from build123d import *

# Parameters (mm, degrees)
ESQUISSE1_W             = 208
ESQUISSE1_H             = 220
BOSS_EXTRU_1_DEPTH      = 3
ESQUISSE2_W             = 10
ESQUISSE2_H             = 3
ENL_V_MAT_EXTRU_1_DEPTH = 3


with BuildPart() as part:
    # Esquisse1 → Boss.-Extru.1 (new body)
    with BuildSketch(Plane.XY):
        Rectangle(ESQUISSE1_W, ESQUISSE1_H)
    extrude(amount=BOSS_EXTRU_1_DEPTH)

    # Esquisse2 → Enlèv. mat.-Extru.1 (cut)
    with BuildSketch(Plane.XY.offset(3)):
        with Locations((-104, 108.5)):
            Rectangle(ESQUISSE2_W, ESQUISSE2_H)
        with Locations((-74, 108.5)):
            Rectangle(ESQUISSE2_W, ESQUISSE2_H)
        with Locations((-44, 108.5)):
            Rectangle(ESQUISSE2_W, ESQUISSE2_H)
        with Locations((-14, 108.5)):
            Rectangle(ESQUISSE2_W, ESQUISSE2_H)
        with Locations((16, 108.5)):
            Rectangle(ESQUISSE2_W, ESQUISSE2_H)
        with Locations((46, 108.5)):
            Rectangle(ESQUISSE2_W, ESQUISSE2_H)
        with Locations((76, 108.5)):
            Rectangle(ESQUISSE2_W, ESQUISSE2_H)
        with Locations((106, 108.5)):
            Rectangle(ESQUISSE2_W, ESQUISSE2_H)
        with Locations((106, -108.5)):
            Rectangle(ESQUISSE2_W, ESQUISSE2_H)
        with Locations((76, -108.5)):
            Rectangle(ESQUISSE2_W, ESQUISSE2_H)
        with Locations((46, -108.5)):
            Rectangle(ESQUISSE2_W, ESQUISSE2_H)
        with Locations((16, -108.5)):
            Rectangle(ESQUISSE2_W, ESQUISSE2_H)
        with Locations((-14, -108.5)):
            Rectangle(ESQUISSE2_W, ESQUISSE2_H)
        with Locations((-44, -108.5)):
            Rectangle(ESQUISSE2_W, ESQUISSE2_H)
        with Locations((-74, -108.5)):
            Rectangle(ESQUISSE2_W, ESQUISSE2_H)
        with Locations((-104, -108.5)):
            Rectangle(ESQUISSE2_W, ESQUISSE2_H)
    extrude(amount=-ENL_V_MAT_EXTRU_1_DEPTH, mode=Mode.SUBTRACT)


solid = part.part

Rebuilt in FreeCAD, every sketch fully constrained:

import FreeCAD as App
import Part
import Sketcher
from FreeCAD import Vector
Q = App.Units.Quantity

doc = App.newDocument("Part")
body = doc.addObject("PartDesign::Body", "Body")

sketch1 = body.newObject("Sketcher::SketchObject", "Sketch")
sketch1.AttachmentSupport = (doc.getObject("XY_Plane"), [""])
sketch1.MapMode = "FlatFace"
sketch1.addGeometry(Part.LineSegment(Vector(-104, 110, 0), Vector(-104, -110, 0)), False)
sketch1.addGeometry(Part.LineSegment(Vector(-104, -110, 0), Vector(104, -110, 0)), False)
sketch1.addGeometry(Part.LineSegment(Vector(104, -110, 0), Vector(104, 110, 0)), False)
sketch1.addGeometry(Part.LineSegment(Vector(104, 110, 0), Vector(-104, 110, 0)), False)
sketch1.addConstraint(Sketcher.Constraint("Coincident", 0, 2, 1, 1))
sketch1.addConstraint(Sketcher.Constraint("Coincident", 1, 2, 2, 1))
sketch1.addConstraint(Sketcher.Constraint("Coincident", 2, 2, 3, 1))
sketch1.addConstraint(Sketcher.Constraint("Coincident", 3, 2, 0, 1))
sketch1.addConstraint(Sketcher.Constraint("Vertical", 0))
sketch1.addConstraint(Sketcher.Constraint("Horizontal", 1))
sketch1.addConstraint(Sketcher.Constraint("Vertical", 2))
sketch1.addConstraint(Sketcher.Constraint("Horizontal", 3))
sketch1.addConstraint(Sketcher.Constraint("Symmetric", 0, 2, 2, 2, -1, 1))
sketch1.addConstraint(Sketcher.Constraint("DistanceX", 1, 1, 1, 2, Q("208 mm")))
sketch1.addConstraint(Sketcher.Constraint("DistanceY", 0, 2, 0, 1, Q("220 mm")))
pad1 = body.newObject("PartDesign::Pad", "Pad")
pad1.Profile = sketch1
pad1.Length = 3

sketch2 = body.newObject("Sketcher::SketchObject", "Sketch001")
sketch2.AttachmentSupport = (doc.getObject("XY_Plane"), [""])
sketch2.MapMode = "FlatFace"
sketch2.AttachmentOffset = App.Placement(Vector(0, 0, 3), App.Rotation())
sketch2.addGeometry(Part.LineSegment(Vector(-109, 110, 0), Vector(-109, 107, 0)), False)
sketch2.addGeometry(Part.LineSegment(Vector(-109, 107, 0), Vector(-99, 107, 0)), False)
sketch2.addGeometry(Part.LineSegment(Vector(-99, 107, 0), Vector(-99, 110, 0)), False)
sketch2.addGeometry(Part.LineSegment(Vector(-99, 110, 0), Vector(-109, 110, 0)), False)
sketch2.addGeometry(Part.LineSegment(Vector(-79, 110, 0), Vector(-79, 107, 0)), False)
sketch2.addGeometry(Part.LineSegment(Vector(-79, 107, 0), Vector(-69, 107, 0)), False)
sketch2.addGeometry(Part.LineSegment(Vector(-69, 107, 0), Vector(-69, 110, 0)), False)
sketch2.addGeometry(Part.LineSegment(Vector(-69, 110, 0), Vector(-79, 110, 0)), False)
sketch2.addGeometry(Part.LineSegment(Vector(-49, 110, 0), Vector(-49, 107, 0)), False)
sketch2.addGeometry(Part.LineSegment(Vector(-49, 107, 0), Vector(-39, 107, 0)), False)
sketch2.addGeometry(Part.LineSegment(Vector(-39, 107, 0), Vector(-39, 110, 0)), False)
sketch2.addGeometry(Part.LineSegment(Vector(-39, 110, 0), Vector(-49, 110, 0)), False)
sketch2.addGeometry(Part.LineSegment(Vector(-19, 110, 0), Vector(-19, 107, 0)), False)
sketch2.addGeometry(Part.LineSegment(Vector(-19, 107, 0), Vector(-9, 107, 0)), False)
sketch2.addGeometry(Part.LineSegment(Vector(-9, 107, 0), Vector(-9, 110, 0)), False)
sketch2.addGeometry(Part.LineSegment(Vector(-9, 110, 0), Vector(-19, 110, 0)), False)
sketch2.addGeometry(Part.LineSegment(Vector(11, 110, 0), Vector(11, 107, 0)), False)
sketch2.addGeometry(Part.LineSegment(Vector(11, 107, 0), Vector(21, 107, 0)), False)
sketch2.addGeometry(Part.LineSegment(Vector(21, 107, 0), Vector(21, 110, 0)), False)
sketch2.addGeometry(Part.LineSegment(Vector(21, 110, 0), Vector(11, 110, 0)), False)
sketch2.addGeometry(Part.LineSegment(Vector(41, 110, 0), Vector(41, 107, 0)), False)
sketch2.addGeometry(Part.LineSegment(Vector(41, 107, 0), Vector(51, 107, 0)), False)
sketch2.addGeometry(Part.LineSegment(Vector(51, 107, 0), Vector(51, 110, 0)), False)
sketch2.addGeometry(Part.LineSegment(Vector(51, 110, 0), Vector(41, 110, 0)), False)
sketch2.addGeometry(Part.LineSegment(Vector(71, 110, 0), Vector(71, 107, 0)), False)
sketch2.addGeometry(Part.LineSegment(Vector(71, 107, 0), Vector(81, 107, 0)), False)
sketch2.addGeometry(Part.LineSegment(Vector(81, 107, 0), Vector(81, 110, 0)), False)
sketch2.addGeometry(Part.LineSegment(Vector(81, 110, 0), Vector(71, 110, 0)), False)
sketch2.addGeometry(Part.LineSegment(Vector(101, 110, 0), Vector(101, 107, 0)), False)
sketch2.addGeometry(Part.LineSegment(Vector(101, 107, 0), Vector(111, 107, 0)), False)
sketch2.addGeometry(Part.LineSegment(Vector(111, 107, 0), Vector(111, 110, 0)), False)
sketch2.addGeometry(Part.LineSegment(Vector(111, 110, 0), Vector(101, 110, 0)), False)
sketch2.addGeometry(Part.LineSegment(Vector(101, -107, 0), Vector(101, -110, 0)), False)
sketch2.addGeometry(Part.LineSegment(Vector(101, -110, 0), Vector(111, -110, 0)), False)
sketch2.addGeometry(Part.LineSegment(Vector(111, -110, 0), Vector(111, -107, 0)), False)
sketch2.addGeometry(Part.LineSegment(Vector(111, -107, 0), Vector(101, -107, 0)), False)
sketch2.addGeometry(Part.LineSegment(Vector(71, -107, 0), Vector(71, -110, 0)), False)
sketch2.addGeometry(Part.LineSegment(Vector(71, -110, 0), Vector(81, -110, 0)), False)
sketch2.addGeometry(Part.LineSegment(Vector(81, -110, 0), Vector(81, -107, 0)), False)
sketch2.addGeometry(Part.LineSegment(Vector(81, -107, 0), Vector(71, -107, 0)), False)
sketch2.addGeometry(Part.LineSegment(Vector(41, -107, 0), Vector(41, -110, 0)), False)
sketch2.addGeometry(Part.LineSegment(Vector(41, -110, 0), Vector(51, -110, 0)), False)
sketch2.addGeometry(Part.LineSegment(Vector(51, -110, 0), Vector(51, -107, 0)), False)
sketch2.addGeometry(Part.LineSegment(Vector(51, -107, 0), Vector(41, -107, 0)), False)
sketch2.addGeometry(Part.LineSegment(Vector(11, -107, 0), Vector(11, -110, 0)), False)
sketch2.addGeometry(Part.LineSegment(Vector(11, -110, 0), Vector(21, -110, 0)), False)
sketch2.addGeometry(Part.LineSegment(Vector(21, -110, 0), Vector(21, -107, 0)), False)
sketch2.addGeometry(Part.LineSegment(Vector(21, -107, 0), Vector(11, -107, 0)), False)
sketch2.addGeometry(Part.LineSegment(Vector(-19, -107, 0), Vector(-19, -110, 0)), False)
sketch2.addGeometry(Part.LineSegment(Vector(-19, -110, 0), Vector(-9, -110, 0)), False)
sketch2.addGeometry(Part.LineSegment(Vector(-9, -110, 0), Vector(-9, -107, 0)), False)
sketch2.addGeometry(Part.LineSegment(Vector(-9, -107, 0), Vector(-19, -107, 0)), False)
sketch2.addGeometry(Part.LineSegment(Vector(-49, -107, 0), Vector(-49, -110, 0)), False)
sketch2.addGeometry(Part.LineSegment(Vector(-49, -110, 0), Vector(-39, -110, 0)), False)
sketch2.addGeometry(Part.LineSegment(Vector(-39, -110, 0), Vector(-39, -107, 0)), False)
sketch2.addGeometry(Part.LineSegment(Vector(-39, -107, 0), Vector(-49, -107, 0)), False)
sketch2.addGeometry(Part.LineSegment(Vector(-79, -107, 0), Vector(-79, -110, 0)), False)
sketch2.addGeometry(Part.LineSegment(Vector(-79, -110, 0), Vector(-69, -110, 0)), False)
sketch2.addGeometry(Part.LineSegment(Vector(-69, -110, 0), Vector(-69, -107, 0)), False)
sketch2.addGeometry(Part.LineSegment(Vector(-69, -107, 0), Vector(-79, -107, 0)), False)
sketch2.addGeometry(Part.LineSegment(Vector(-109, -107, 0), Vector(-109, -110, 0)), False)
sketch2.addGeometry(Part.LineSegment(Vector(-109, -110, 0), Vector(-99, -110, 0)), False)
sketch2.addGeometry(Part.LineSegment(Vector(-99, -110, 0), Vector(-99, -107, 0)), False)
sketch2.addGeometry(Part.LineSegment(Vector(-99, -107, 0), Vector(-109, -107, 0)), False)
sketch2.addConstraint(Sketcher.Constraint("Coincident", 0, 2, 1, 1))
sketch2.addConstraint(Sketcher.Constraint("Coincident", 1, 2, 2, 1))
sketch2.addConstraint(Sketcher.Constraint("Coincident", 2, 2, 3, 1))
sketch2.addConstraint(Sketcher.Constraint("Coincident", 3, 2, 0, 1))
sketch2.addConstraint(Sketcher.Constraint("Coincident", 4, 2, 5, 1))
sketch2.addConstraint(Sketcher.Constraint("Coincident", 5, 2, 6, 1))
sketch2.addConstraint(Sketcher.Constraint("Coincident", 6, 2, 7, 1))
sketch2.addConstraint(Sketcher.Constraint("Coincident", 7, 2, 4, 1))
sketch2.addConstraint(Sketcher.Constraint("Coincident", 8, 2, 9, 1))
sketch2.addConstraint(Sketcher.Constraint("Coincident", 9, 2, 10, 1))
sketch2.addConstraint(Sketcher.Constraint("Coincident", 10, 2, 11, 1))
sketch2.addConstraint(Sketcher.Constraint("Coincident", 11, 2, 8, 1))
sketch2.addConstraint(Sketcher.Constraint("Coincident", 12, 2, 13, 1))
sketch2.addConstraint(Sketcher.Constraint("Coincident", 13, 2, 14, 1))
sketch2.addConstraint(Sketcher.Constraint("Coincident", 14, 2, 15, 1))
sketch2.addConstraint(Sketcher.Constraint("Coincident", 15, 2, 12, 1))
sketch2.addConstraint(Sketcher.Constraint("Coincident", 16, 2, 17, 1))
sketch2.addConstraint(Sketcher.Constraint("Coincident", 17, 2, 18, 1))
sketch2.addConstraint(Sketcher.Constraint("Coincident", 18, 2, 19, 1))
sketch2.addConstraint(Sketcher.Constraint("Coincident", 19, 2, 16, 1))
sketch2.addConstraint(Sketcher.Constraint("Coincident", 20, 2, 21, 1))
sketch2.addConstraint(Sketcher.Constraint("Coincident", 21, 2, 22, 1))
sketch2.addConstraint(Sketcher.Constraint("Coincident", 22, 2, 23, 1))
sketch2.addConstraint(Sketcher.Constraint("Coincident", 23, 2, 20, 1))
sketch2.addConstraint(Sketcher.Constraint("Coincident", 24, 2, 25, 1))
sketch2.addConstraint(Sketcher.Constraint("Coincident", 25, 2, 26, 1))
sketch2.addConstraint(Sketcher.Constraint("Coincident", 26, 2, 27, 1))
sketch2.addConstraint(Sketcher.Constraint("Coincident", 27, 2, 24, 1))
sketch2.addConstraint(Sketcher.Constraint("Coincident", 28, 2, 29, 1))
sketch2.addConstraint(Sketcher.Constraint("Coincident", 29, 2, 30, 1))
sketch2.addConstraint(Sketcher.Constraint("Coincident", 30, 2, 31, 1))
sketch2.addConstraint(Sketcher.Constraint("Coincident", 31, 2, 28, 1))
sketch2.addConstraint(Sketcher.Constraint("Coincident", 32, 2, 33, 1))
sketch2.addConstraint(Sketcher.Constraint("Coincident", 33, 2, 34, 1))
sketch2.addConstraint(Sketcher.Constraint("Coincident", 34, 2, 35, 1))
sketch2.addConstraint(Sketcher.Constraint("Coincident", 35, 2, 32, 1))
sketch2.addConstraint(Sketcher.Constraint("Coincident", 36, 2, 37, 1))
sketch2.addConstraint(Sketcher.Constraint("Coincident", 37, 2, 38, 1))
sketch2.addConstraint(Sketcher.Constraint("Coincident", 38, 2, 39, 1))
sketch2.addConstraint(Sketcher.Constraint("Coincident", 39, 2, 36, 1))
sketch2.addConstraint(Sketcher.Constraint("Coincident", 40, 2, 41, 1))
sketch2.addConstraint(Sketcher.Constraint("Coincident", 41, 2, 42, 1))
sketch2.addConstraint(Sketcher.Constraint("Coincident", 42, 2, 43, 1))
sketch2.addConstraint(Sketcher.Constraint("Coincident", 43, 2, 40, 1))
sketch2.addConstraint(Sketcher.Constraint("Coincident", 44, 2, 45, 1))
sketch2.addConstraint(Sketcher.Constraint("Coincident", 45, 2, 46, 1))
sketch2.addConstraint(Sketcher.Constraint("Coincident", 46, 2, 47, 1))
sketch2.addConstraint(Sketcher.Constraint("Coincident", 47, 2, 44, 1))
sketch2.addConstraint(Sketcher.Constraint("Coincident", 48, 2, 49, 1))
sketch2.addConstraint(Sketcher.Constraint("Coincident", 49, 2, 50, 1))
sketch2.addConstraint(Sketcher.Constraint("Coincident", 50, 2, 51, 1))
sketch2.addConstraint(Sketcher.Constraint("Coincident", 51, 2, 48, 1))
sketch2.addConstraint(Sketcher.Constraint("Coincident", 52, 2, 53, 1))
sketch2.addConstraint(Sketcher.Constraint("Coincident", 53, 2, 54, 1))
sketch2.addConstraint(Sketcher.Constraint("Coincident", 54, 2, 55, 1))
sketch2.addConstraint(Sketcher.Constraint("Coincident", 55, 2, 52, 1))
sketch2.addConstraint(Sketcher.Constraint("Coincident", 56, 2, 57, 1))
sketch2.addConstraint(Sketcher.Constraint("Coincident", 57, 2, 58, 1))
sketch2.addConstraint(Sketcher.Constraint("Coincident", 58, 2, 59, 1))
sketch2.addConstraint(Sketcher.Constraint("Coincident", 59, 2, 56, 1))
sketch2.addConstraint(Sketcher.Constraint("Coincident", 60, 2, 61, 1))
sketch2.addConstraint(Sketcher.Constraint("Coincident", 61, 2, 62, 1))
sketch2.addConstraint(Sketcher.Constraint("Coincident", 62, 2, 63, 1))
sketch2.addConstraint(Sketcher.Constraint("Coincident", 63, 2, 60, 1))
sketch2.addConstraint(Sketcher.Constraint("Vertical", 0))
sketch2.addConstraint(Sketcher.Constraint("Horizontal", 1))
sketch2.addConstraint(Sketcher.Constraint("Vertical", 2))
sketch2.addConstraint(Sketcher.Constraint("Horizontal", 3))
sketch2.addConstraint(Sketcher.Constraint("Vertical", 4))
sketch2.addConstraint(Sketcher.Constraint("Horizontal", 5))
sketch2.addConstraint(Sketcher.Constraint("Vertical", 6))
sketch2.addConstraint(Sketcher.Constraint("Horizontal", 7))
sketch2.addConstraint(Sketcher.Constraint("Vertical", 8))
sketch2.addConstraint(Sketcher.Constraint("Horizontal", 9))
sketch2.addConstraint(Sketcher.Constraint("Vertical", 10))
sketch2.addConstraint(Sketcher.Constraint("Horizontal", 11))
sketch2.addConstraint(Sketcher.Constraint("Vertical", 12))
sketch2.addConstraint(Sketcher.Constraint("Horizontal", 13))
sketch2.addConstraint(Sketcher.Constraint("Vertical", 14))
sketch2.addConstraint(Sketcher.Constraint("Horizontal", 15))
sketch2.addConstraint(Sketcher.Constraint("Vertical", 16))
sketch2.addConstraint(Sketcher.Constraint("Horizontal", 17))
sketch2.addConstraint(Sketcher.Constraint("Vertical", 18))
sketch2.addConstraint(Sketcher.Constraint("Horizontal", 19))
sketch2.addConstraint(Sketcher.Constraint("Vertical", 20))
sketch2.addConstraint(Sketcher.Constraint("Horizontal", 21))
sketch2.addConstraint(Sketcher.Constraint("Vertical", 22))
sketch2.addConstraint(Sketcher.Constraint("Horizontal", 23))
sketch2.addConstraint(Sketcher.Constraint("Vertical", 24))
sketch2.addConstraint(Sketcher.Constraint("Horizontal", 25))
sketch2.addConstraint(Sketcher.Constraint("Vertical", 26))
sketch2.addConstraint(Sketcher.Constraint("Horizontal", 27))
sketch2.addConstraint(Sketcher.Constraint("Vertical", 28))
sketch2.addConstraint(Sketcher.Constraint("Horizontal", 29))
sketch2.addConstraint(Sketcher.Constraint("Vertical", 30))
sketch2.addConstraint(Sketcher.Constraint("Horizontal", 31))
sketch2.addConstraint(Sketcher.Constraint("Vertical", 32))
sketch2.addConstraint(Sketcher.Constraint("Horizontal", 33))
sketch2.addConstraint(Sketcher.Constraint("Vertical", 34))
sketch2.addConstraint(Sketcher.Constraint("Horizontal", 35))
sketch2.addConstraint(Sketcher.Constraint("Vertical", 36))
sketch2.addConstraint(Sketcher.Constraint("Horizontal", 37))
sketch2.addConstraint(Sketcher.Constraint("Vertical", 38))
sketch2.addConstraint(Sketcher.Constraint("Horizontal", 39))
sketch2.addConstraint(Sketcher.Constraint("Vertical", 40))
sketch2.addConstraint(Sketcher.Constraint("Horizontal", 41))
sketch2.addConstraint(Sketcher.Constraint("Vertical", 42))
sketch2.addConstraint(Sketcher.Constraint("Horizontal", 43))
sketch2.addConstraint(Sketcher.Constraint("Vertical", 44))
sketch2.addConstraint(Sketcher.Constraint("Horizontal", 45))
sketch2.addConstraint(Sketcher.Constraint("Vertical", 46))
sketch2.addConstraint(Sketcher.Constraint("Horizontal", 47))
sketch2.addConstraint(Sketcher.Constraint("Vertical", 48))
sketch2.addConstraint(Sketcher.Constraint("Horizontal", 49))
sketch2.addConstraint(Sketcher.Constraint("Vertical", 50))
sketch2.addConstraint(Sketcher.Constraint("Horizontal", 51))
sketch2.addConstraint(Sketcher.Constraint("Vertical", 52))
sketch2.addConstraint(Sketcher.Constraint("Horizontal", 53))
sketch2.addConstraint(Sketcher.Constraint("Vertical", 54))
sketch2.addConstraint(Sketcher.Constraint("Horizontal", 55))
sketch2.addConstraint(Sketcher.Constraint("Vertical", 56))
sketch2.addConstraint(Sketcher.Constraint("Horizontal", 57))
sketch2.addConstraint(Sketcher.Constraint("Vertical", 58))
sketch2.addConstraint(Sketcher.Constraint("Horizontal", 59))
sketch2.addConstraint(Sketcher.Constraint("Vertical", 60))
sketch2.addConstraint(Sketcher.Constraint("Horizontal", 61))
sketch2.addConstraint(Sketcher.Constraint("Vertical", 62))
sketch2.addConstraint(Sketcher.Constraint("Horizontal", 63))
sketch2.addConstraint(Sketcher.Constraint("Symmetric", 31, 2, 32, 2, -1))
sketch2.addConstraint(Sketcher.Constraint("Symmetric", 29, 2, 34, 2, -1))
sketch2.addConstraint(Sketcher.Constraint("Symmetric", 27, 2, 36, 2, -1))
sketch2.addConstraint(Sketcher.Constraint("Symmetric", 25, 2, 38, 2, -1))
sketch2.addConstraint(Sketcher.Constraint("Symmetric", 23, 2, 40, 2, -1))
sketch2.addConstraint(Sketcher.Constraint("Symmetric", 21, 2, 42, 2, -1))
sketch2.addConstraint(Sketcher.Constraint("Symmetric", 19, 2, 44, 2, -1))
sketch2.addConstraint(Sketcher.Constraint("Symmetric", 17, 2, 46, 2, -1))
sketch2.addConstraint(Sketcher.Constraint("Symmetric", 15, 2, 48, 2, -1))
sketch2.addConstraint(Sketcher.Constraint("Symmetric", 13, 2, 50, 2, -1))
sketch2.addConstraint(Sketcher.Constraint("Symmetric", 11, 2, 52, 2, -1))
sketch2.addConstraint(Sketcher.Constraint("Symmetric", 9, 2, 54, 2, -1))
sketch2.addConstraint(Sketcher.Constraint("Symmetric", 7, 2, 56, 2, -1))
sketch2.addConstraint(Sketcher.Constraint("Symmetric", 5, 2, 58, 2, -1))
sketch2.addConstraint(Sketcher.Constraint("Symmetric", 3, 2, 60, 2, -1))
sketch2.addConstraint(Sketcher.Constraint("Symmetric", 1, 2, 62, 2, -1))
sketch2.addConstraint(Sketcher.Constraint("Horizontal", 1, 2, 4, 2))
sketch2.addConstraint(Sketcher.Constraint("Horizontal", 3, 2, 6, 2))
sketch2.addConstraint(Sketcher.Constraint("Horizontal", 5, 2, 8, 2))
sketch2.addConstraint(Sketcher.Constraint("Horizontal", 7, 2, 10, 2))
sketch2.addConstraint(Sketcher.Constraint("Horizontal", 9, 2, 12, 2))
sketch2.addConstraint(Sketcher.Constraint("Horizontal", 11, 2, 14, 2))
sketch2.addConstraint(Sketcher.Constraint("Horizontal", 13, 2, 16, 2))
sketch2.addConstraint(Sketcher.Constraint("Horizontal", 15, 2, 18, 2))
sketch2.addConstraint(Sketcher.Constraint("Horizontal", 17, 2, 20, 2))
sketch2.addConstraint(Sketcher.Constraint("Horizontal", 19, 2, 22, 2))
sketch2.addConstraint(Sketcher.Constraint("Horizontal", 21, 2, 24, 2))
sketch2.addConstraint(Sketcher.Constraint("Horizontal", 23, 2, 26, 2))
sketch2.addConstraint(Sketcher.Constraint("Horizontal", 25, 2, 28, 2))
sketch2.addConstraint(Sketcher.Constraint("Horizontal", 27, 2, 30, 2))
sketch2.addConstraint(Sketcher.Constraint("Equal", 3, 5))
sketch2.addConstraint(Sketcher.Constraint("Equal", 7, 9))
sketch2.addConstraint(Sketcher.Constraint("Equal", 11, 13))
sketch2.addConstraint(Sketcher.Constraint("Equal", 15, 17))
sketch2.addConstraint(Sketcher.Constraint("Equal", 19, 21))
sketch2.addConstraint(Sketcher.Constraint("Equal", 23, 25))
sketch2.addConstraint(Sketcher.Constraint("Equal", 27, 29))
sketch2.addConstraint(Sketcher.Constraint("DistanceX", 1, 1, 1, 2, Q("10 mm")))
sketch2.addConstraint(Sketcher.Constraint("DistanceY", 0, 2, 0, 1, Q("3 mm")))
sketch2.addConstraint(Sketcher.Constraint("DistanceX", 0, 2, -1, 1, Q("109 mm")))
sketch2.addConstraint(Sketcher.Constraint("DistanceY", -1, 1, 0, 2, Q("107 mm")))
sketch2.addConstraint(Sketcher.Constraint("DistanceX", 4, 2, -1, 1, Q("79 mm")))
sketch2.addConstraint(Sketcher.Constraint("DistanceX", 8, 2, -1, 1, Q("49 mm")))
sketch2.addConstraint(Sketcher.Constraint("DistanceX", 12, 2, -1, 1, Q("19 mm")))
sketch2.addConstraint(Sketcher.Constraint("DistanceX", -1, 1, 16, 2, Q("11 mm")))
sketch2.addConstraint(Sketcher.Constraint("DistanceX", -1, 1, 20, 2, Q("41 mm")))
sketch2.addConstraint(Sketcher.Constraint("DistanceX", -1, 1, 24, 2, Q("71 mm")))
sketch2.addConstraint(Sketcher.Constraint("DistanceX", -1, 1, 28, 2, Q("101 mm")))
pocket1 = body.newObject("PartDesign::Pocket", "Pocket")
pocket1.Profile = sketch2
pocket1.Length = 3

doc.recompute()
